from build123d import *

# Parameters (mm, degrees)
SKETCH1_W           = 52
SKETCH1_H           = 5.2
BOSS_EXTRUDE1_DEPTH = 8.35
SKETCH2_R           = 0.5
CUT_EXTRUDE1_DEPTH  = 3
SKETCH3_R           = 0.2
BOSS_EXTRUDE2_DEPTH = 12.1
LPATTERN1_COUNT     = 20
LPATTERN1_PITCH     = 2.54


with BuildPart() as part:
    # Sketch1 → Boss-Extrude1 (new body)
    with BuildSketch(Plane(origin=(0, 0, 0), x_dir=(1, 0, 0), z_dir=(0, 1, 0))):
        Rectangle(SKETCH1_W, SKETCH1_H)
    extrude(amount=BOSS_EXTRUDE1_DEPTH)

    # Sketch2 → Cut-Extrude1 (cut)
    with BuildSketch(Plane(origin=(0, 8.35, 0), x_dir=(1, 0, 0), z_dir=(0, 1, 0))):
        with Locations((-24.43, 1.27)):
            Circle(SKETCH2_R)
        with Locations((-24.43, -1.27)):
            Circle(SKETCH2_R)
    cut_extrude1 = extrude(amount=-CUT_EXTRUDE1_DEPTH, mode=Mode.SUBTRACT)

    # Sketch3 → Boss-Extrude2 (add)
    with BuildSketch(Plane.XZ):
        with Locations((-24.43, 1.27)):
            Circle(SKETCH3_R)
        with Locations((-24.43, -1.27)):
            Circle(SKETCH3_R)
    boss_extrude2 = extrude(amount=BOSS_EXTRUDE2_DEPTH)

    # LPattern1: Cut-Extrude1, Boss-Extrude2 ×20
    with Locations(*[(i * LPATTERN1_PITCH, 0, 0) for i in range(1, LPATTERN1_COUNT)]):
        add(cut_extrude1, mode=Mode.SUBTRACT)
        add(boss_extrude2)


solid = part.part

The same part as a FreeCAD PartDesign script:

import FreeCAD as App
import Part
import Sketcher

V = App.Vector
Q = App.Units.Quantity


def add_polygon(sketch, points):
    """Adds a closed chain of lines whose ends are joined by coincident constraints."""
    first, n = sketch.GeometryCount, len(points)
    for a, b in zip(points, points[1:] + points[:1]):
        sketch.addGeometry(Part.LineSegment(App.Vector(*a, 0), App.Vector(*b, 0)), False)
    for i in range(n):
        sketch.addConstraint(Sketcher.Constraint("Coincident", first + i, 2, first + (i + 1) % n, 1))

doc = App.newDocument("Part")
body = doc.addObject("PartDesign::Body", "Body")

sketch1 = body.newObject("Sketcher::SketchObject", "Sketch")
sketch1.AttachmentSupport = (doc.getObject("XZ_Plane"), [""])
sketch1.MapMode = "FlatFace"
add_polygon(sketch1, [(-26, -3), (-26, 3), (26, 3), (26, -3)])
sketch1.addConstraint(Sketcher.Constraint("Vertical", 0))
sketch1.addConstraint(Sketcher.Constraint("Horizontal", 1))
sketch1.addConstraint(Sketcher.Constraint("Vertical", 2))
sketch1.addConstraint(Sketcher.Constraint("Horizontal", 3))
sketch1.addConstraint(Sketcher.Constraint("Symmetric", 0, 2, 2, 2, -1, 1))
sketch1.addConstraint(Sketcher.Constraint("DistanceX", 1, 1, 1, 2, Q("52 mm")))
sketch1.addConstraint(Sketcher.Constraint("DistanceY", 0, 1, 0, 2, Q("5.2 mm")))
pad1 = body.newObject("PartDesign::Pad", "Pad")
pad1.Profile = sketch1
pad1.Length = 8.35
pad1.Reversed = True

sketch2 = body.newObject("Sketcher::SketchObject", "Sketch001")
sketch2.AttachmentSupport = (doc.getObject("XZ_Plane"), [""])
sketch2.MapMode = "FlatFace"
sketch2.AttachmentOffset = App.Placement(V(0, 0, -8.35), App.Rotation())
sketch2.addGeometry(Part.Circle(V(-24.4, -1.3, 0), V(0, 0, 1), 0.5), False)
sketch2.addGeometry(Part.Circle(V(-24.4, 1.3, 0), V(0, 0, 1), 0.5), False)
sketch2.addConstraint(Sketcher.Constraint("Equal", 0, 1))
sketch2.addConstraint(Sketcher.Constraint("Symmetric", 0, 3, 1, 3, -1))
sketch2.addConstraint(Sketcher.Constraint("Diameter", 0, Q("1 mm")))
sketch2.addConstraint(Sketcher.Constraint("DistanceX", 0, 3, -1, 1, Q("24.43 mm")))
sketch2.addConstraint(Sketcher.Constraint("DistanceY", 0, 3, -1, 1, Q("1.27 mm")))
pocket1 = body.newObject("PartDesign::Pocket", "Pocket")
pocket1.Profile = sketch2
pocket1.Length = 3
pocket1.Reversed = True

sketch3 = body.newObject("Sketcher::SketchObject", "Sketch002")
sketch3.AttachmentSupport = (doc.getObject("XZ_Plane"), [""])
sketch3.MapMode = "FlatFace"
sketch3.addGeometry(Part.Circle(V(-24.43, 1.27, 0), V(0, 0, 1), 0.2), False)
sketch3.addGeometry(Part.Circle(V(-24.43, -1.27, 0), V(0, 0, 1), 0.2), False)
sketch3.addConstraint(Sketcher.Constraint("Equal", 0, 1))
sketch3.addConstraint(Sketcher.Constraint("Symmetric", 0, 3, 1, 3, -1))
sketch3.addConstraint(Sketcher.Constraint("Diameter", 0, Q("0.4 mm")))
sketch3.addConstraint(Sketcher.Constraint("DistanceX", 0, 3, -1, 1, Q("24.43 mm")))
sketch3.addConstraint(Sketcher.Constraint("DistanceY", -1, 1, 0, 3, Q("1.27 mm")))
pad2 = body.newObject("PartDesign::Pad", "Pad001")
pad2.Profile = sketch3
pad2.Length = 12.1
doc.recompute()

linearpattern = body.newObject("PartDesign::LinearPattern", "LinearPattern")
linearpattern.Originals = [pocket1, pad2]
linearpattern.Direction = (doc.getObject("X_Axis"), [""])
linearpattern.Mode = "offset"
linearpattern.Offset = 2.54
linearpattern.Occurrences = 20
body.Tip = linearpattern

doc.recompute()
